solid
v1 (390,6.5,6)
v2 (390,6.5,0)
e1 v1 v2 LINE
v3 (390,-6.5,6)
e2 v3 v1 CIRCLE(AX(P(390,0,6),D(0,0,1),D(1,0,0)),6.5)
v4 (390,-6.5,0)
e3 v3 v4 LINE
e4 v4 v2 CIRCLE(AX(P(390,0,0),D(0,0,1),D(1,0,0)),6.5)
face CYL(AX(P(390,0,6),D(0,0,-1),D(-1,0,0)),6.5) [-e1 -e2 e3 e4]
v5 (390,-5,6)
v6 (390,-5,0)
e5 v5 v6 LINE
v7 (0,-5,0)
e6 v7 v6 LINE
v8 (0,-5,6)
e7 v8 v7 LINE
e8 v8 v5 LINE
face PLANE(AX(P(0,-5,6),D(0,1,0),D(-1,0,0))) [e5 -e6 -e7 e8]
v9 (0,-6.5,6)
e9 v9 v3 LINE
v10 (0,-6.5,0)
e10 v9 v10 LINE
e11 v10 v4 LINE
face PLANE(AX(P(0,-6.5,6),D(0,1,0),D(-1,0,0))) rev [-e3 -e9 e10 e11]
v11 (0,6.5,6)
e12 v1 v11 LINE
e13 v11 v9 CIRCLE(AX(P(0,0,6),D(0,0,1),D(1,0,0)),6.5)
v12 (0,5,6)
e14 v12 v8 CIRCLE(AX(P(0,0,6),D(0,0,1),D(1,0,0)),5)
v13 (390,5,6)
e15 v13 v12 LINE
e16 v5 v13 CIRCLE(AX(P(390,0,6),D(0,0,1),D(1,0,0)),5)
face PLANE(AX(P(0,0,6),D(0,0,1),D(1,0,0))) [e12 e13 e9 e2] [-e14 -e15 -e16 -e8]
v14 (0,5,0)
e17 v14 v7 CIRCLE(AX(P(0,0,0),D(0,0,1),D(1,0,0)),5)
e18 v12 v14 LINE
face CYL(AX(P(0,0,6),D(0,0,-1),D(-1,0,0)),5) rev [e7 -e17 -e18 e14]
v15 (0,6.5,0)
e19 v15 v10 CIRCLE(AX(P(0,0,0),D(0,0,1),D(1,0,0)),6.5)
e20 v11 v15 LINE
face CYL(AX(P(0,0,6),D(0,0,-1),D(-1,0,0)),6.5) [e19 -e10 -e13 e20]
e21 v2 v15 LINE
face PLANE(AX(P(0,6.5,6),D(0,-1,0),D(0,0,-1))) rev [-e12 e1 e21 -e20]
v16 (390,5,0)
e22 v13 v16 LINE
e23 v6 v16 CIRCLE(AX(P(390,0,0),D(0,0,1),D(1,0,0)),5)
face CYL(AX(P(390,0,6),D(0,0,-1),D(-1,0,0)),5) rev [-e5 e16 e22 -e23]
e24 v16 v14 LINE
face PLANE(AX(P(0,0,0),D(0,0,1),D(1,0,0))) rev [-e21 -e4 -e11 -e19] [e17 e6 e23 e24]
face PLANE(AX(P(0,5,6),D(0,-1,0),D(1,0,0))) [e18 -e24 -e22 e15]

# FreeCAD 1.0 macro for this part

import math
import FreeCAD as App
import Part
import Sketcher

V = App.Vector
Q = App.Units.Quantity

doc = App.newDocument("Part")
body = doc.addObject("PartDesign::Body", "Body")

# Sketch on XY plane
sketch1 = body.newObject("Sketcher::SketchObject", "Sketch")
sketch1.AttachmentSupport = (doc.getObject("XY_Plane"), [""])
sketch1.MapMode = "FlatFace"
sketch1.addGeometry(Part.LineSegment(V(390, 6, 0), V(0, 6, 0)), False)
sketch1.addGeometry(Part.ArcOfCircle(Part.Circle(V(0, 0, 0), V(0, 0, 1), 6), math.radians(90), math.radians(270)), False)
sketch1.addGeometry(Part.LineSegment(V(0, -6, 0), V(390, -6, 0)), False)
sketch1.addGeometry(Part.ArcOfCircle(Part.Circle(V(390, 0, 0), V(0, 0, 1), 6), math.radians(-90), math.radians(90)), False)
sketch1.addGeometry(Part.LineSegment(V(0, 5, 0), V(390, 5, 0)), False)
sketch1.addGeometry(Part.ArcOfCircle(Part.Circle(V(390, 0, 0), V(0, 0, 1), 5), math.radians(-90), math.radians(90)), False)
sketch1.addGeometry(Part.LineSegment(V(390, -5, 0), V(0, -5, 0)), False)
sketch1.addGeometry(Part.ArcOfCircle(Part.Circle(V(0, 0, 0), V(0, 0, 1), 5), math.radians(90), math.radians(270)), False)
sketch1.addConstraint(Sketcher.Constraint("Tangent", 0, 2, 1, 1))
sketch1.addConstraint(Sketcher.Constraint("Tangent", 1, 2, 2, 1))
sketch1.addConstraint(Sketcher.Constraint("Tangent", 2, 2, 3, 1))
sketch1.addConstraint(Sketcher.Constraint("Tangent", 3, 2, 0, 1))
sketch1.addConstraint(Sketcher.Constraint("Tangent", 4, 2, 5, 2))
sketch1.addConstraint(Sketcher.Constraint("Tangent", 5, 1, 6, 1))
sketch1.addConstraint(Sketcher.Constraint("Tangent", 6, 2, 7, 2))
sketch1.addConstraint(Sketcher.Constraint("Tangent", 7, 1, 4, 1))
sketch1.addConstraint(Sketcher.Constraint("Horizontal", 0))
sketch1.addConstraint(Sketcher.Constraint("Horizontal", 2))
sketch1.addConstraint(Sketcher.Constraint("Horizontal", 4))
sketch1.addConstraint(Sketcher.Constraint("Horizontal", 6))
sketch1.addConstraint(Sketcher.Constraint("Coincident", 1, 3, -1, 1))
sketch1.addConstraint(Sketcher.Constraint("Coincident", 7, 3, -1, 1))
sketch1.addConstraint(Sketcher.Constraint("Vertical", 5, 3, 2, 2))
sketch1.addConstraint(Sketcher.Constraint("Radius", 5, Q("5 mm")))
sketch1.addConstraint(Sketcher.Constraint("Radius", 1, Q("6.5 mm")))
sketch1.addConstraint(Sketcher.Constraint("DistanceX", 0, 2, 0, 1, Q("390 mm")))
pad1 = body.newObject("PartDesign::Pad", "Pad")
pad1.Profile = sketch1
pad1.Length = 6

doc.recompute()
